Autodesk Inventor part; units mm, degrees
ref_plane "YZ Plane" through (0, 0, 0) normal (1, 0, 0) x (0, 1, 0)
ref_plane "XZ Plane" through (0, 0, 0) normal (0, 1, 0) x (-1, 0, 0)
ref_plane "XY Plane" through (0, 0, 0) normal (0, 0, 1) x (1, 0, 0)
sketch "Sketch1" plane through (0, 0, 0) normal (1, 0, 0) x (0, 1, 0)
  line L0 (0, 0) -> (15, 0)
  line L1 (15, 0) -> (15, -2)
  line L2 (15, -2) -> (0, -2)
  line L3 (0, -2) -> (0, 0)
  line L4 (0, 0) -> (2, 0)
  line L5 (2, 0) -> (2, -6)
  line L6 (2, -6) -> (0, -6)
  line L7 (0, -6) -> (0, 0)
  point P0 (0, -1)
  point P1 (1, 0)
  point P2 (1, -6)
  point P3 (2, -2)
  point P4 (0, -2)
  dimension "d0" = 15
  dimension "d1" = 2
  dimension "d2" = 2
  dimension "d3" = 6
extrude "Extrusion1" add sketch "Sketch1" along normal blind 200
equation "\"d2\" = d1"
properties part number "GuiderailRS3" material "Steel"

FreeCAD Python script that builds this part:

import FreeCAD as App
import Part
import Sketcher
Q = App.Units.Quantity

doc = App.newDocument("Part")
body = doc.addObject("PartDesign::Body", "Body")

# Sketch on YZ plane
sketch1 = doc.addObject("Sketcher::SketchObject", "Sketch")
body.addObject(sketch1)
sketch1.AttachmentSupport = (doc.YZ_Plane, [""])
sketch1.MapMode = "FlatFace"
sketch1.addGeometry(Part.LineSegment(App.Vector(0, 0, 0), App.Vector(0, -6, 0)), False)
sketch1.addGeometry(Part.LineSegment(App.Vector(0, -6, 0), App.Vector(2, -6, 0)), False)
sketch1.addGeometry(Part.LineSegment(App.Vector(2, -6, 0), App.Vector(2, -2, 0)), False)
sketch1.addGeometry(Part.LineSegment(App.Vector(2, -2, 0), App.Vector(15, -2, 0)), False)
sketch1.addGeometry(Part.LineSegment(App.Vector(15, -2, 0), App.Vector(15, 0, 0)), False)
sketch1.addGeometry(Part.LineSegment(App.Vector(15, 0, 0), App.Vector(0, 0, 0)), False)
sketch1.addConstraint(Sketcher.Constraint("Coincident", 0, 2, 1, 1))
sketch1.addConstraint(Sketcher.Constraint("Coincident", 1, 2, 2, 1))
sketch1.addConstraint(Sketcher.Constraint("Coincident", 2, 2, 3, 1))
sketch1.addConstraint(Sketcher.Constraint("Coincident", 3, 2, 4, 1))
sketch1.addConstraint(Sketcher.Constraint("Coincident", 4, 2, 5, 1))
sketch1.addConstraint(Sketcher.Constraint("Coincident", 5, 2, 0, 1))
sketch1.addConstraint(Sketcher.Constraint("Vertical", 0))
sketch1.addConstraint(Sketcher.Constraint("Horizontal", 1))
sketch1.addConstraint(Sketcher.Constraint("Vertical", 2))
sketch1.addConstraint(Sketcher.Constraint("Horizontal", 3))
sketch1.addConstraint(Sketcher.Constraint("Vertical", 4))
sketch1.addConstraint(Sketcher.Constraint("Horizontal", 5))
sketch1.addConstraint(Sketcher.Constraint("Coincident", 5, 2, -1, 1))
sketch1.addConstraint(Sketcher.Constraint("Equal", 1, 4))
sketch1.addConstraint(Sketcher.Constraint("DistanceX", 1, 1, 1, 2, Q("2 mm")))
sketch1.addConstraint(Sketcher.Constraint("DistanceX", 5, 2, 5, 1, Q("15 mm")))
sketch1.addConstraint(Sketcher.Constraint("DistanceY", 0, 2, 0, 1, Q("6 mm")))
pad1 = doc.addObject("PartDesign::Pad", "Pad")
body.addObject(pad1)
pad1.Profile = sketch1
pad1.Length = 200

doc.recompute()
